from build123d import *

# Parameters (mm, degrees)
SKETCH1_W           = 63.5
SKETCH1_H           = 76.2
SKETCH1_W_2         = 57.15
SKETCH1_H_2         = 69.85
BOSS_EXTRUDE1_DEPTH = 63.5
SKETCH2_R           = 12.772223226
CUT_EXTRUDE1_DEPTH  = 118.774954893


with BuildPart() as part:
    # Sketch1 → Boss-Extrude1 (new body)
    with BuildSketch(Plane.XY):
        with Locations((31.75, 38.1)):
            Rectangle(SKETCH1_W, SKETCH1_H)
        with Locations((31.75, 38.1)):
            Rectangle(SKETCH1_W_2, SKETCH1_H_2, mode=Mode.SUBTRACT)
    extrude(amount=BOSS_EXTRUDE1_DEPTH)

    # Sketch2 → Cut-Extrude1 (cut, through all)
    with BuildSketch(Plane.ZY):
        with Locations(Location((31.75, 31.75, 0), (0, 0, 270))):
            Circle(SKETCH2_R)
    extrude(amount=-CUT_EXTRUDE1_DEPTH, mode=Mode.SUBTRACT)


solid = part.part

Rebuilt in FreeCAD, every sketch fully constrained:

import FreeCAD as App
import Part
import Sketcher
from FreeCAD import Vector
Q = App.Units.Quantity


def add_polygon(sketch, points):
    """Adds a closed chain of lines whose ends are joined by coincident constraints."""
    first, n = sketch.GeometryCount, len(points)
    for a, b in zip(points, points[1:] + points[:1]):
        sketch.addGeometry(Part.LineSegment(App.Vector(*a, 0), App.Vector(*b, 0)), False)
    for i in range(n):
        sketch.addConstraint(Sketcher.Constraint("Coincident", first + i, 2, first + (i + 1) % n, 1))

doc = App.newDocument("Part")
params = doc.addObject("Spreadsheet::Sheet", "Params")
for row, (alias, value) in enumerate([
    ("sketch1_height", "3 in"),
    ("sketch1_width", "2.5 in"),
    ("sketch1_width2", "2.25 in"),
    ("sketch1_height2", "2.75 in"),
    ("pad1_length", "2.5 in"),
], start=1):
    params.set(f"A{row}", alias)
    params.set(f"B{row}", "=" + value)
    params.setAlias(f"B{row}", alias)

body = doc.addObject("PartDesign::Body", "Body")

# Sketch on XY plane
sketch1 = body.newObject("Sketcher::SketchObject", "Sketch")
sketch1.AttachmentSupport = (doc.getObject("XY_Plane"), [""])
sketch1.MapMode = "FlatFace"
add_polygon(sketch1, [(0, 76), (0, 0), (64, 0), (64, 76)])  # lines 0-3
add_polygon(sketch1, [(60, 3), (3, 3), (3, 73), (60, 73)])  # lines 4-7
sketch1.addConstraint(Sketcher.Constraint("Vertical", 0))
sketch1.addConstraint(Sketcher.Constraint("Horizontal", 1))
sketch1.addConstraint(Sketcher.Constraint("Vertical", 2))
sketch1.addConstraint(Sketcher.Constraint("Horizontal", 3))
sketch1.addConstraint(Sketcher.Constraint("Horizontal", 4))
sketch1.addConstraint(Sketcher.Constraint("Vertical", 5))
sketch1.addConstraint(Sketcher.Constraint("Horizontal", 6))
sketch1.addConstraint(Sketcher.Constraint("Vertical", 7))
sketch1.addConstraint(Sketcher.Constraint("Coincident", 0, 2, -1, 1))
sketch1.addConstraint(Sketcher.Constraint("DistanceY", 0, 2, 0, 1, Q("3 in")))
sketch1.addConstraint(Sketcher.Constraint("DistanceX", 1, 1, 1, 2, Q("2.5 in")))
sketch1.addConstraint(Sketcher.Constraint("DistanceX", 4, 2, 4, 1, Q("2.25 in")))
sketch1.addConstraint(Sketcher.Constraint("DistanceY", 5, 1, 5, 2, Q("2.75 in")))
sketch1.addConstraint(Sketcher.Constraint("DistanceX", -1, 1, 4, 2, Q("0.125 in")))
sketch1.addConstraint(Sketcher.Constraint("DistanceY", -1, 1, 4, 2, Q("0.125 in")))
sketch1.setExpression("Constraints[17]", "Params.sketch1_height")
sketch1.setExpression("Constraints[18]", "Params.sketch1_width")
sketch1.setExpression("Constraints[19]", "Params.sketch1_width2")
sketch1.setExpression("Constraints[20]", "Params.sketch1_height2")
pad1 = body.newObject("PartDesign::Pad", "Pad")
pad1.Profile = sketch1
pad1.setExpression("Length", "Params.pad1_length")

# Sketch on YZ plane
sketch2 = body.newObject("Sketcher::SketchObject", "Sketch001")
sketch2.AttachmentSupport = (doc.getObject("YZ_Plane"), [""])
sketch2.MapMode = "FlatFace"
sketch2.addGeometry(Part.Circle(Vector(32, 32, 0), Vector(0, 0, 1), 13), False)
sketch2.addConstraint(Sketcher.Constraint("DistanceX", -1, 1, 0, 3, Q("1.25 in")))
sketch2.addConstraint(Sketcher.Constraint("DistanceY", -1, 1, 0, 3, Q("1.25 in")))
sketch2.addConstraint(Sketcher.Constraint("Diameter", 0, Q("25.544446 mm")))
pocket1 = body.newObject("PartDesign::Pocket", "Pocket")
pocket1.Profile = sketch2
pocket1.Type = "ThroughAll"
pocket1.Reversed = True

doc.recompute()
